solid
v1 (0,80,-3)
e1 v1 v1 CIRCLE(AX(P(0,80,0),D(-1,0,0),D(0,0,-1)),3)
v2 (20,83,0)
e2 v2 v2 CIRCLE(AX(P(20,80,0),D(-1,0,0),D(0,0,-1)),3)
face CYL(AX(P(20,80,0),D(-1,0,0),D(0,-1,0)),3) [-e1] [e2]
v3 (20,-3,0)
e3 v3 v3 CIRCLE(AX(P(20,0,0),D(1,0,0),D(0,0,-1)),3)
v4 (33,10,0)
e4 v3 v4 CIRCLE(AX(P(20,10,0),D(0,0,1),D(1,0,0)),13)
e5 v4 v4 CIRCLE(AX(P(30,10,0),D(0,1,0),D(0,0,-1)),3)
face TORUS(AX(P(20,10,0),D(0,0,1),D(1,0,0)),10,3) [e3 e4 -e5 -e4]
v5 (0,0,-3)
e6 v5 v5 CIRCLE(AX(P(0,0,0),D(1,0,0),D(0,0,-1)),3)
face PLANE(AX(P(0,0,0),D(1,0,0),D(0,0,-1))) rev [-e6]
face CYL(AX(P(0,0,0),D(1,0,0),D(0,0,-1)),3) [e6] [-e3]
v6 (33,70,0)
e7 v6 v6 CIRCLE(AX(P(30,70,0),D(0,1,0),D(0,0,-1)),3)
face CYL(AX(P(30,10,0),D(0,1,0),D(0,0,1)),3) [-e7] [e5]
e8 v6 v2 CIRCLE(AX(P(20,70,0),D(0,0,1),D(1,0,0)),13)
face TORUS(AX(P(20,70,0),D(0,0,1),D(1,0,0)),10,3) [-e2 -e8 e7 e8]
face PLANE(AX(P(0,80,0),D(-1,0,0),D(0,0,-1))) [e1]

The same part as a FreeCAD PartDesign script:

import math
import FreeCAD as App
import Part
import Sketcher
Q = App.Units.Quantity

doc = App.newDocument("Part")
body = doc.addObject("PartDesign::Body", "Body")

sketch1 = doc.addObject("Sketcher::SketchObject", "Sketch")
body.addObject(sketch1)
sketch1.AttachmentSupport = (doc.YZ_Plane, [""])
sketch1.MapMode = "FlatFace"
sketch1.addGeometry(Part.Circle(App.Vector(0, 0, 0), App.Vector(0, 0, 1), 3), False)
sketch1.addConstraint([
    Sketcher.Constraint("Coincident", 0, 3, -1, 1),
    Sketcher.Constraint("Diameter", 0, Q("6 mm")),
])

sketch2 = doc.addObject("Sketcher::SketchObject", "Sketch001")
body.addObject(sketch2)
sketch2.AttachmentSupport = (doc.XY_Plane, [""])
sketch2.MapMode = "FlatFace"
sketch2.addGeometry([
    Part.LineSegment(App.Vector(0, 0, 0), App.Vector(20, 0, 0)),
    Part.ArcOfCircle(Part.Circle(App.Vector(20, 10, 0), App.Vector(0, 0, 1), 10), math.radians(-90), math.radians(0)),
    Part.LineSegment(App.Vector(30, 10, 0), App.Vector(30, 70, 0)),
    Part.ArcOfCircle(Part.Circle(App.Vector(20, 70, 0), App.Vector(0, 0, 1), 10), math.radians(0), math.radians(90)),
    Part.LineSegment(App.Vector(20, 80, 0), App.Vector(0, 80, 0)),
], False)
sketch2.addConstraint([
    Sketcher.Constraint("Tangent", 0, 2, 1, 1),
    Sketcher.Constraint("Tangent", 1, 2, 2, 1),
    Sketcher.Constraint("Tangent", 2, 2, 3, 1),
    Sketcher.Constraint("Tangent", 3, 2, 4, 1),
    Sketcher.Constraint("Horizontal", 0),
    Sketcher.Constraint("Vertical", 2),
    Sketcher.Constraint("Horizontal", 4),
    Sketcher.Constraint("Coincident", 0, 1, -1, 1),
    Sketcher.Constraint("Equal", 1, 3),
    Sketcher.Constraint("PointOnObject", 4, 2, -2),
    Sketcher.Constraint("Radius", 1, Q("10 mm")),
    Sketcher.Constraint("DistanceX", 0, 1, 0, 2, Q("20 mm")),
    Sketcher.Constraint("DistanceY", 2, 1, 2, 2, Q("60 mm")),
])
doc.recompute()

additivepipe = doc.addObject("PartDesign::AdditivePipe", "AdditivePipe")
body.addObject(additivepipe)
additivepipe.Profile = sketch1
additivepipe.Spine = (sketch2, ["Edge1", "Edge2", "Edge3", "Edge4", "Edge5"])

doc.recompute()
